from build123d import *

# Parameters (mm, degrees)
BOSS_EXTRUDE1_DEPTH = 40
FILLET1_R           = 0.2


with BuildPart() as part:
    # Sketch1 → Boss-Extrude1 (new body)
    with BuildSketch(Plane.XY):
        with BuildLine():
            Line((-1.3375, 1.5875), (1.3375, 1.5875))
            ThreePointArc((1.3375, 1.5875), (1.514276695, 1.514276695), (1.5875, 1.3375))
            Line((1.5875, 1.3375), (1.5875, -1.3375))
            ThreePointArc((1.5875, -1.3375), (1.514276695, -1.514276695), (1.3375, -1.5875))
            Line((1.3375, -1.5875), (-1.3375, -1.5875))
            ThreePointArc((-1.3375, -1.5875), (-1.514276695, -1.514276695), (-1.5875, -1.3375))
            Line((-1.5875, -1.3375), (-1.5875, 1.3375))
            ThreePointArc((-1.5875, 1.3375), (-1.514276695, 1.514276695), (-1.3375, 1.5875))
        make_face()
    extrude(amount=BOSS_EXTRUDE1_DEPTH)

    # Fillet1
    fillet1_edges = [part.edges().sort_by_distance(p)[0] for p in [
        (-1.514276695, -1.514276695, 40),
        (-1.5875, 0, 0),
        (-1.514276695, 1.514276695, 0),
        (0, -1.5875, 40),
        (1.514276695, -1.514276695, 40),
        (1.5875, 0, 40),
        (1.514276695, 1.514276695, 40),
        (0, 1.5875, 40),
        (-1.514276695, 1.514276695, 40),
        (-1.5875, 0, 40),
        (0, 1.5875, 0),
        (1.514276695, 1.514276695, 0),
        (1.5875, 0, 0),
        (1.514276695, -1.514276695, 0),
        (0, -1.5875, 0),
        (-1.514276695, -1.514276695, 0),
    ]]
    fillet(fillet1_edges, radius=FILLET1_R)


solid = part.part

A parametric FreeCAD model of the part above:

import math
import FreeCAD as App
import Part
import Sketcher


def edges_at(feature, points):
    """Names of the edges that pass closest to the given points."""
    edges = feature.Shape.Edges
    near = lambda p: min(range(len(edges)), key=lambda i: edges[i].distToShape(Part.Vertex(*p))[0])
    return sorted({f"Edge{near(p) + 1}" for p in points})

doc = App.newDocument("Part")
body = doc.addObject("PartDesign::Body", "Body")

# Sketch on XY plane
sketch1 = body.newObject("Sketcher::SketchObject", "Sketch")
sketch1.AttachmentSupport = (doc.getObject("XY_Plane"), [""])
sketch1.MapMode = "FlatFace"
sketch1.addGeometry([
    Part.LineSegment(App.Vector(1.34, 1.59, 0), App.Vector(-1.34, 1.59, 0)),  # 0
    Part.ArcOfCircle(Part.Circle(App.Vector(-1.34, 1.34, 0), App.Vector(0, 0, 1), 0.25), math.radians(90), math.radians(180)),  # 1
    Part.LineSegment(App.Vector(-1.59, 1.34, 0), App.Vector(-1.59, -1.34, 0)),  # 2
    Part.ArcOfCircle(Part.Circle(App.Vector(-1.34, -1.34, 0), App.Vector(0, 0, 1), 0.25), math.radians(-180), math.radians(-90)),  # 3
    Part.LineSegment(App.Vector(-1.34, -1.59, 0), App.Vector(1.34, -1.59, 0)),  # 4
    Part.ArcOfCircle(Part.Circle(App.Vector(1.34, -1.34, 0), App.Vector(0, 0, 1), 0.25), math.radians(-90), math.radians(0)),  # 5
    Part.LineSegment(App.Vector(1.59, -1.34, 0), App.Vector(1.59, 1.34, 0)),  # 6
    Part.ArcOfCircle(Part.Circle(App.Vector(1.34, 1.34, 0), App.Vector(0, 0, 1), 0.25), math.radians(0), math.radians(90)),  # 7
], False)
sketch1.addConstraint([
    Sketcher.Constraint("Tangent", 0, 2, 1, 1),
    Sketcher.Constraint("Tangent", 1, 2, 2, 1),
    Sketcher.Constraint("Tangent", 2, 2, 3, 1),
    Sketcher.Constraint("Tangent", 3, 2, 4, 1),
    Sketcher.Constraint("Tangent", 4, 2, 5, 1),
    Sketcher.Constraint("Tangent", 5, 2, 6, 1),
    Sketcher.Constraint("Tangent", 6, 2, 7, 1),
    Sketcher.Constraint("Tangent", 7, 2, 0, 1),
    Sketcher.Constraint("Horizontal", 0),
    Sketcher.Constraint("Vertical", 2),
    Sketcher.Constraint("Horizontal", 4),
    Sketcher.Constraint("Vertical", 6),
    Sketcher.Constraint("Equal", 1, 3),
    Sketcher.Constraint("Equal", 3, 5),
    Sketcher.Constraint("Equal", 5, 7),
    Sketcher.Constraint("Symmetric", 1, 3, 5, 3, -1, 1),
    Sketcher.Constraint("Equal", 4, 2),
    Sketcher.Constraint("Radius", 1, 0.25),
    Sketcher.Constraint("DistanceX", 0, 2, 0, 1, 2.675),
])
pad1 = body.newObject("PartDesign::Pad", "Pad")
pad1.Profile = sketch1
pad1.Length = 40
doc.recompute()

fillet = body.newObject("PartDesign::Fillet", "Fillet")
fillet.Base = (pad1, edges_at(pad1, [
    (-1.514, -1.514, 40),
    (-1.587, 0, 0),
    (-1.514, 1.514, 0),
    (0, -1.587, 40),
    (1.514, -1.514, 40),
    (1.587, 0, 40),
    (1.514, 1.514, 40),
    (0, 1.587, 40),
    (-1.514, 1.514, 40),
    (-1.587, 0, 40),
    (0, 1.587, 0),
    (1.514, 1.514, 0),
    (1.587, 0, 0),
    (1.514, -1.514, 0),
    (0, -1.587, 0),
    (-1.514, -1.514, 0),
]))
fillet.Radius = 0.2

doc.recompute()
